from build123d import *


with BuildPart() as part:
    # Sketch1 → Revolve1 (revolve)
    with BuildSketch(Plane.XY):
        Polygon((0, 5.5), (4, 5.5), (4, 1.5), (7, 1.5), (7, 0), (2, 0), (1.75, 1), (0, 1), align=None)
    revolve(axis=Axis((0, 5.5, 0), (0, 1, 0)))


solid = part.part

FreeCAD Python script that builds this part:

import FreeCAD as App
import Part
import Sketcher
from FreeCAD import Vector

doc = App.newDocument("Part")
body = doc.addObject("PartDesign::Body", "Body")

# Sketch on XY plane
sketch1 = body.newObject("Sketcher::SketchObject", "Sketch")
sketch1.AttachmentSupport = (doc.getObject("XY_Plane"), [""])
sketch1.MapMode = "FlatFace"
sketch1.addGeometry([
    Part.LineSegment(Vector(4, 5.5, 0), Vector(0, 5.5, 0)),  # 0
    Part.LineSegment(Vector(0, 5.5, 0), Vector(0, 1, 0)),  # 1
    Part.LineSegment(Vector(0, 1, 0), Vector(1.8, 1, 0)),  # 2
    Part.LineSegment(Vector(1.8, 1, 0), Vector(2, 0, 0)),  # 3
    Part.LineSegment(Vector(2, 0, 0), Vector(7, 0, 0)),  # 4
    Part.LineSegment(Vector(7, 0, 0), Vector(7, 1.5, 0)),  # 5
    Part.LineSegment(Vector(7, 1.5, 0), Vector(4, 1.5, 0)),  # 6
    Part.LineSegment(Vector(4, 1.5, 0), Vector(4, 5.5, 0)),  # 7
], False)
sketch1.addConstraint([
    Sketcher.Constraint("Coincident", 0, 2, 1, 1),
    Sketcher.Constraint("Coincident", 1, 2, 2, 1),
    Sketcher.Constraint("Coincident", 2, 2, 3, 1),
    Sketcher.Constraint("Coincident", 3, 2, 4, 1),
    Sketcher.Constraint("Coincident", 4, 2, 5, 1),
    Sketcher.Constraint("Coincident", 5, 2, 6, 1),
    Sketcher.Constraint("Coincident", 6, 2, 7, 1),
    Sketcher.Constraint("Coincident", 7, 2, 0, 1),
    Sketcher.Constraint("Horizontal", 0),
    Sketcher.Constraint("Vertical", 1),
    Sketcher.Constraint("Horizontal", 2),
    Sketcher.Constraint("Horizontal", 4),
    Sketcher.Constraint("Vertical", 5),
    Sketcher.Constraint("Horizontal", 6),
    Sketcher.Constraint("Vertical", 7),
    Sketcher.Constraint("PointOnObject", 0, 2, -2),
    Sketcher.Constraint("PointOnObject", 3, 2, -1),
    Sketcher.Constraint("Equal", 0, 7),
    Sketcher.Constraint("DistanceX", 0, 2, 0, 1, 4.0),
    Sketcher.Constraint("DistanceX", 4, 1, 4, 2, 5.0),
    Sketcher.Constraint("DistanceX", 6, 2, 6, 1, 3.0),
    Sketcher.Constraint("DistanceY", 1, 2, 1, 1, 4.5),
    Sketcher.Constraint("DistanceY", 5, 1, 5, 2, 1.5),
    Sketcher.Constraint("DistanceX", 2, 1, 2, 2, 1.75),
])
revolution = body.newObject("PartDesign::Revolution", "Revolution")
revolution.Profile = sketch1
revolution.ReferenceAxis = (sketch1, ["V_Axis"])
revolution.Angle = 360

doc.recompute()
